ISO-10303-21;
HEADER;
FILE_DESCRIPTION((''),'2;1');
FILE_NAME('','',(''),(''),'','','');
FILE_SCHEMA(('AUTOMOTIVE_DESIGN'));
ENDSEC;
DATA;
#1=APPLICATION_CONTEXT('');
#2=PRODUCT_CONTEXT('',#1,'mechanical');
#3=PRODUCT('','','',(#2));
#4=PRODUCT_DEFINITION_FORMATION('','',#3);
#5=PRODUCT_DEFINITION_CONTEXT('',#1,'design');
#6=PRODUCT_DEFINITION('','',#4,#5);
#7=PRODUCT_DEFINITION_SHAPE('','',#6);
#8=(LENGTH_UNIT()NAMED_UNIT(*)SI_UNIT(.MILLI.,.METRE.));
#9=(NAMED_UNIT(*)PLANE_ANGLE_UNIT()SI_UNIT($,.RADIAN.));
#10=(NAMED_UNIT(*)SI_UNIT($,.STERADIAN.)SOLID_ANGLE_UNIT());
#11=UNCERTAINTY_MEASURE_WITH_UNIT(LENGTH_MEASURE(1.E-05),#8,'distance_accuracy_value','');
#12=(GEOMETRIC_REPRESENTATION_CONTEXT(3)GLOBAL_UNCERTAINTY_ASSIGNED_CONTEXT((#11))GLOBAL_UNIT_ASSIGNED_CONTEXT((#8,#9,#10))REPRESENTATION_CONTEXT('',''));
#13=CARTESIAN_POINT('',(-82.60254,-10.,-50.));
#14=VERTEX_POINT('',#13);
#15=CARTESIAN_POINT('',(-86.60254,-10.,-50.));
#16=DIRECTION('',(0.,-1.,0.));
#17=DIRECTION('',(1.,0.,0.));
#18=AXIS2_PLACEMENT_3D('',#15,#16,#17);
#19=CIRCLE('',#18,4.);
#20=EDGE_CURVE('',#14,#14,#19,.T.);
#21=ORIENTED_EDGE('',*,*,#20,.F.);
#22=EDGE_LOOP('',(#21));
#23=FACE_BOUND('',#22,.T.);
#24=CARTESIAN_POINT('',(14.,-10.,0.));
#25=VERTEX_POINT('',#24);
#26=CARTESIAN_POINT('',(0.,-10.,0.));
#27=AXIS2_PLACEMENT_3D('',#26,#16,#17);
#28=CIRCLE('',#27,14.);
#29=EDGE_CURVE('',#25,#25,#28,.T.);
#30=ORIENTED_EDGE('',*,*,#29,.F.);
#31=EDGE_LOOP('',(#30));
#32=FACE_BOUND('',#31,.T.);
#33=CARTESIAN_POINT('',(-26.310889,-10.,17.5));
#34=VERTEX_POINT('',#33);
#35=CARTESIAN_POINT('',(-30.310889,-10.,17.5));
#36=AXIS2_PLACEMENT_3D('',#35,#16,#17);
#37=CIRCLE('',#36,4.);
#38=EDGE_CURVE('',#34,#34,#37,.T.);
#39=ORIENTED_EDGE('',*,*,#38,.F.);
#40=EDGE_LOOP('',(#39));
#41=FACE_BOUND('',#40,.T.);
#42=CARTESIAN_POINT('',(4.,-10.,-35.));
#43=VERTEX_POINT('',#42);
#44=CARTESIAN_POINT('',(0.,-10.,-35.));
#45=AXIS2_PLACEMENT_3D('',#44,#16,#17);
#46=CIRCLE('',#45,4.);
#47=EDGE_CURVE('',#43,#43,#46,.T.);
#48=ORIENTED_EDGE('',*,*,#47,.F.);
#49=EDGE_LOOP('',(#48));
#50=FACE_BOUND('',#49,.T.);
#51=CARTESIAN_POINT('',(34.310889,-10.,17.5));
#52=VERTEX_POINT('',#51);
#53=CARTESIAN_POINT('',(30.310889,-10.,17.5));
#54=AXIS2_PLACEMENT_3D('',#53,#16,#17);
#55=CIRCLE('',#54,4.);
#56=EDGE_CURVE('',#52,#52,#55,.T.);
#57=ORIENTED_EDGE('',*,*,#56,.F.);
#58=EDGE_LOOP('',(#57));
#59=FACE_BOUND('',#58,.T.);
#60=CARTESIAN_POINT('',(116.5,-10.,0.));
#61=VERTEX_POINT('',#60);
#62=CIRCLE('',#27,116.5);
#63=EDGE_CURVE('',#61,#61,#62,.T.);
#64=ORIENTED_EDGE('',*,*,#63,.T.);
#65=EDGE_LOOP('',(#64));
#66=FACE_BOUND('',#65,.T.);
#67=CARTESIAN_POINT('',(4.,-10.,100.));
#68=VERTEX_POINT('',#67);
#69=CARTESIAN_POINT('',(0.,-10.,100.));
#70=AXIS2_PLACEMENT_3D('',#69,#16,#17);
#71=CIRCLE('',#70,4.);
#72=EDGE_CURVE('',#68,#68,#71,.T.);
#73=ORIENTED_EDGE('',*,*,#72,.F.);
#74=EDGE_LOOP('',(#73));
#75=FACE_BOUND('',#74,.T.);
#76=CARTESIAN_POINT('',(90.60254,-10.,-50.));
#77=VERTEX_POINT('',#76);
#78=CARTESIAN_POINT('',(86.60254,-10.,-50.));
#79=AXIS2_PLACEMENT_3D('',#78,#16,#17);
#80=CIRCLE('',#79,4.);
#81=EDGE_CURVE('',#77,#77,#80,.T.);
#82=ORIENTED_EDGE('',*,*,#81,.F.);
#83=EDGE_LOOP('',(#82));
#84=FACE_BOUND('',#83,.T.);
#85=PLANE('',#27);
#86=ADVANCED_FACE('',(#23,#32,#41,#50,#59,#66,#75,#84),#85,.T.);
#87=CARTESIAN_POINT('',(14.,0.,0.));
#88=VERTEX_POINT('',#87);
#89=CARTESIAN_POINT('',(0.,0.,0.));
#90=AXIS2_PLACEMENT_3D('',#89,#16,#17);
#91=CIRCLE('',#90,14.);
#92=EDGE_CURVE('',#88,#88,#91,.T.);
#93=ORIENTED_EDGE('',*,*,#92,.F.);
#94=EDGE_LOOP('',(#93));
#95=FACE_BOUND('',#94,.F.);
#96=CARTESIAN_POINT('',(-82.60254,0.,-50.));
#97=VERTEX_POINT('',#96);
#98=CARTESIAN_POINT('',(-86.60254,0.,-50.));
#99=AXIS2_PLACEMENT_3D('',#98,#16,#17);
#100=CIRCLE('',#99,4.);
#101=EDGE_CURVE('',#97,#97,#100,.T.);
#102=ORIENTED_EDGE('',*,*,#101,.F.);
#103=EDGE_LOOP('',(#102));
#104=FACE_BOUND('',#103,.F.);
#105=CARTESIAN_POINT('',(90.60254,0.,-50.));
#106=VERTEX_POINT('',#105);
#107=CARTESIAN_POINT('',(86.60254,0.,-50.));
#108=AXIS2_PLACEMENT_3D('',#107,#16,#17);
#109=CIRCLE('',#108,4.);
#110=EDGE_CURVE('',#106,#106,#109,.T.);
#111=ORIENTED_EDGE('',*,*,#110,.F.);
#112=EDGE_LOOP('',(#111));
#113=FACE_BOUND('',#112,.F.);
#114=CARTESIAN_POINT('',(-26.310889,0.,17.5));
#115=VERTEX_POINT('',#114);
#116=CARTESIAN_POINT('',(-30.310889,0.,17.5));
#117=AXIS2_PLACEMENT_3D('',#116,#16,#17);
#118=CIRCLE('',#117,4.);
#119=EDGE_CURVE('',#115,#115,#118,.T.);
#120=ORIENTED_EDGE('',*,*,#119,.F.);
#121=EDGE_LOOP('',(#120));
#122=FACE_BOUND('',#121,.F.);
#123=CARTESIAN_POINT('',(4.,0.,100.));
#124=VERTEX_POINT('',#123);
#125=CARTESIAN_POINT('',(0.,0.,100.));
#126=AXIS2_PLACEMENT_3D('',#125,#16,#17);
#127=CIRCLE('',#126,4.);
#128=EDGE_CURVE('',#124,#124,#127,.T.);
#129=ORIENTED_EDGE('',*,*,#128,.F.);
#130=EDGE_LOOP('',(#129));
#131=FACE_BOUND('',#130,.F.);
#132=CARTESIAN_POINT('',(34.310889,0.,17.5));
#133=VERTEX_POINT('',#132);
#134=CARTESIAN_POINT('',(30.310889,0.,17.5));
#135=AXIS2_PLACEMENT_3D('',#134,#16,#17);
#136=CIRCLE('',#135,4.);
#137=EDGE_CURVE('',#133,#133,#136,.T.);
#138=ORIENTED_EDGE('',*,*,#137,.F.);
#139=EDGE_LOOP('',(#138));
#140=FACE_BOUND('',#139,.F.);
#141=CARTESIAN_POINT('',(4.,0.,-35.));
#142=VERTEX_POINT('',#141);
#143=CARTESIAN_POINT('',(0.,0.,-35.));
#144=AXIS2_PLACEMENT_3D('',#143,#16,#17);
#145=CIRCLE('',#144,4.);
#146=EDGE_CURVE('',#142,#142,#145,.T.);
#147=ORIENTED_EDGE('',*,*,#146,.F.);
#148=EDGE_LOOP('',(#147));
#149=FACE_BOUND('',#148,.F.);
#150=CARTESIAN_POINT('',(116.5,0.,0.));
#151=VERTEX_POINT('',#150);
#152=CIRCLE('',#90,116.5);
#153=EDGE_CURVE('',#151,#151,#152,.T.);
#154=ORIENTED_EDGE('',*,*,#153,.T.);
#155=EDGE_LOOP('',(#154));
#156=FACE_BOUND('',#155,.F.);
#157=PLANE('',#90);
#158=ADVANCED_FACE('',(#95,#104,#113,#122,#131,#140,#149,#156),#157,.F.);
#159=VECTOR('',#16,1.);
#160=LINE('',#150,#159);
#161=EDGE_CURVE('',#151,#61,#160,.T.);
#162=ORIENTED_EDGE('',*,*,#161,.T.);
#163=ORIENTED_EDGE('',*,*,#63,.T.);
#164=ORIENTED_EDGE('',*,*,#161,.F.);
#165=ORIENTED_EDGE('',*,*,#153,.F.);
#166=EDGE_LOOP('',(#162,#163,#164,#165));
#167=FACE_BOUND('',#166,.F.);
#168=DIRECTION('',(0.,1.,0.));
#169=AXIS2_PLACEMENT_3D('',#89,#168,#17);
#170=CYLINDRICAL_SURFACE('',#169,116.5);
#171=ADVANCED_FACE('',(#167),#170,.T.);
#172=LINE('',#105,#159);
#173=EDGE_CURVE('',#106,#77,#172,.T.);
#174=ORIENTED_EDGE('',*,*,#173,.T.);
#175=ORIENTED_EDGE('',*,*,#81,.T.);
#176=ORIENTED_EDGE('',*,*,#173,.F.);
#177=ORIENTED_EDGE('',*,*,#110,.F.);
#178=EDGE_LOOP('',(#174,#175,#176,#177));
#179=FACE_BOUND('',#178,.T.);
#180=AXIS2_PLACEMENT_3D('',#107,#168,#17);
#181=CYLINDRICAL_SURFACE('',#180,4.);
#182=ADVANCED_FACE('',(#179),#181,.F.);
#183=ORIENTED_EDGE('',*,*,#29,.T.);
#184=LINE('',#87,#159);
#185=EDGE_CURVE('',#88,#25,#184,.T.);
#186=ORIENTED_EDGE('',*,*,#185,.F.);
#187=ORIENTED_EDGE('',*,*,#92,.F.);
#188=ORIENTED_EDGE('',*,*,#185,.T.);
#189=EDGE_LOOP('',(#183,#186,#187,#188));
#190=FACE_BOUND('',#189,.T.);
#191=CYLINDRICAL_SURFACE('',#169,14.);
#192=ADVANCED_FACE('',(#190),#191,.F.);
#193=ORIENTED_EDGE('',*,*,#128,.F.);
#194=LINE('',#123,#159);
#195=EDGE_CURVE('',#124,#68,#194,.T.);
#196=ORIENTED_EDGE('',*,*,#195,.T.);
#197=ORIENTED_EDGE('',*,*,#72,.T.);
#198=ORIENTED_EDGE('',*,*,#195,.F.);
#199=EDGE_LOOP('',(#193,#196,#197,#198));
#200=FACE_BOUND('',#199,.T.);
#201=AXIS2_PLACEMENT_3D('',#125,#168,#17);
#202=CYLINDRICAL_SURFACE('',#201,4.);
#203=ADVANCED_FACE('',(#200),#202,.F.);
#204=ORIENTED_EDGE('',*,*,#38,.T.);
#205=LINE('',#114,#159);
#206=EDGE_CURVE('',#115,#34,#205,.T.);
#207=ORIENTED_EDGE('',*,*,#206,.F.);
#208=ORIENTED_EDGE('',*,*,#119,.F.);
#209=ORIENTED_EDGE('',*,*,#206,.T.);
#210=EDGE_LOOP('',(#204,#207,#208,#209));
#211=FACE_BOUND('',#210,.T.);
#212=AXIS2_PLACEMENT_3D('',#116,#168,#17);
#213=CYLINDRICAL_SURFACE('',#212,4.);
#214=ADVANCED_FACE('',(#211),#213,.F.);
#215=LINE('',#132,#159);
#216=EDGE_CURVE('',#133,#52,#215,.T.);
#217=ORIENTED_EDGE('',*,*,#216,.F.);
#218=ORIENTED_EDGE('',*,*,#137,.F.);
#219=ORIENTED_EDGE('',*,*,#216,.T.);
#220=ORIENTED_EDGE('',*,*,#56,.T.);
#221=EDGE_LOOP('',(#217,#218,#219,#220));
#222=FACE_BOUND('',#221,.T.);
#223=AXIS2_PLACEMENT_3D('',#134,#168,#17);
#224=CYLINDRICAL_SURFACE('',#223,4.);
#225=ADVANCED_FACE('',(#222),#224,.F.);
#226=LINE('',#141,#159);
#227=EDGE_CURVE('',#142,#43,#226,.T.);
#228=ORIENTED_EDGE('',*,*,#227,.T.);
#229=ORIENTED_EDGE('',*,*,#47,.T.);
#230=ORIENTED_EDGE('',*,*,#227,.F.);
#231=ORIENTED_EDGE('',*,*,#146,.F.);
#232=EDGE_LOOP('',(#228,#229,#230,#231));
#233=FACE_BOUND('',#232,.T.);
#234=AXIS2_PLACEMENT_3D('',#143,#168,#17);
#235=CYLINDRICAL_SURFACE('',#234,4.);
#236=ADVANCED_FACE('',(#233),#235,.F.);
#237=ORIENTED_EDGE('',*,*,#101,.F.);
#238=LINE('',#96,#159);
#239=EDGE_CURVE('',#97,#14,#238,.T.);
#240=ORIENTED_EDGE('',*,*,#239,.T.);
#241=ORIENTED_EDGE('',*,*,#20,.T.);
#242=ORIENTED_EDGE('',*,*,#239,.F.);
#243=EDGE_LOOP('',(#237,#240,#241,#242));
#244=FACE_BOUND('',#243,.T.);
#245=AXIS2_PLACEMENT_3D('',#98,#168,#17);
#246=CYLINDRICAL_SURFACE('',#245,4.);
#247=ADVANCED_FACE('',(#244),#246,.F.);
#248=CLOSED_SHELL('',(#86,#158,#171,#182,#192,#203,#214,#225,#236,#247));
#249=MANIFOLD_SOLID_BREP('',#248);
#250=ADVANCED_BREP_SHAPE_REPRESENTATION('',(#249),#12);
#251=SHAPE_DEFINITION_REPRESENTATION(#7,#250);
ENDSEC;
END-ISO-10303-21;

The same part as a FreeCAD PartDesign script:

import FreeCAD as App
import Part
import Sketcher
Q = App.Units.Quantity

doc = App.newDocument("Part")
body = doc.addObject("PartDesign::Body", "Body")

# Sketch on XZ plane
sketch1 = body.newObject("Sketcher::SketchObject", "Sketch")
sketch1.AttachmentSupport = (doc.getObject("XZ_Plane"), [""])
sketch1.MapMode = "FlatFace"
sketch1.addGeometry(Part.Circle(App.Vector(0, 0, 0), App.Vector(0, 0, 1), 116.5), False)
sketch1.addGeometry(Part.Circle(App.Vector(-86.60254, -50, 0), App.Vector(0, 0, 1), 4), False)
sketch1.addGeometry(Part.Circle(App.Vector(-30.310889, 17.5, 0), App.Vector(0, 0, 1), 4), False)
sketch1.addGeometry(Part.Circle(App.Vector(0, -35, 0), App.Vector(0, 0, 1), 4), False)
sketch1.addGeometry(Part.Circle(App.Vector(86.60254, -50, 0), App.Vector(0, 0, 1), 4), False)
sketch1.addGeometry(Part.Circle(App.Vector(0, 0, 0), App.Vector(0, 0, 1), 14), False)
sketch1.addGeometry(Part.Circle(App.Vector(30.310889, 17.5, 0), App.Vector(0, 0, 1), 4), False)
sketch1.addGeometry(Part.Circle(App.Vector(0, 100, 0), App.Vector(0, 0, 1), 4), False)
sketch1.addConstraint(Sketcher.Constraint("Coincident", 0, 3, -1, 1))
sketch1.addConstraint(Sketcher.Constraint("Coincident", 5, 3, -1, 1))
sketch1.addConstraint(Sketcher.Constraint("Equal", 1, 2))
sketch1.addConstraint(Sketcher.Constraint("Equal", 2, 3))
sketch1.addConstraint(Sketcher.Constraint("Equal", 3, 4))
sketch1.addConstraint(Sketcher.Constraint("Equal", 4, 6))
sketch1.addConstraint(Sketcher.Constraint("Equal", 6, 7))
sketch1.addConstraint(Sketcher.Constraint("Symmetric", 1, 3, 4, 3, -2))
sketch1.addConstraint(Sketcher.Constraint("Symmetric", 2, 3, 6, 3, -2))
sketch1.addConstraint(Sketcher.Constraint("PointOnObject", 3, 3, -2))
sketch1.addConstraint(Sketcher.Constraint("PointOnObject", 7, 3, -2))
sketch1.addConstraint(Sketcher.Constraint("Diameter", 0, Q("233 mm")))
sketch1.addConstraint(Sketcher.Constraint("Diameter", 1, Q("8 mm")))
sketch1.addConstraint(Sketcher.Constraint("Diameter", 5, Q("28 mm")))
sketch1.addConstraint(Sketcher.Constraint("DistanceY", 1, 3, -1, 1, Q("50 mm")))
sketch1.addConstraint(Sketcher.Constraint("DistanceY", 3, 3, -1, 1, Q("35 mm")))
sketch1.addConstraint(Sketcher.Constraint("DistanceY", -1, 1, 7, 3, Q("100 mm")))
sketch1.addConstraint(Sketcher.Constraint("DistanceY", -1, 1, 2, 3, Q("17.5 mm")))
sketch1.addConstraint(Sketcher.Constraint("DistanceX", 1, 3, -1, 1, Q("86.60254 mm")))
sketch1.addConstraint(Sketcher.Constraint("DistanceX", 2, 3, -1, 1, Q("30.310889 mm")))
pad1 = body.newObject("PartDesign::Pad", "Pad")
pad1.Profile = sketch1
pad1.Length = 10

doc.recompute()
